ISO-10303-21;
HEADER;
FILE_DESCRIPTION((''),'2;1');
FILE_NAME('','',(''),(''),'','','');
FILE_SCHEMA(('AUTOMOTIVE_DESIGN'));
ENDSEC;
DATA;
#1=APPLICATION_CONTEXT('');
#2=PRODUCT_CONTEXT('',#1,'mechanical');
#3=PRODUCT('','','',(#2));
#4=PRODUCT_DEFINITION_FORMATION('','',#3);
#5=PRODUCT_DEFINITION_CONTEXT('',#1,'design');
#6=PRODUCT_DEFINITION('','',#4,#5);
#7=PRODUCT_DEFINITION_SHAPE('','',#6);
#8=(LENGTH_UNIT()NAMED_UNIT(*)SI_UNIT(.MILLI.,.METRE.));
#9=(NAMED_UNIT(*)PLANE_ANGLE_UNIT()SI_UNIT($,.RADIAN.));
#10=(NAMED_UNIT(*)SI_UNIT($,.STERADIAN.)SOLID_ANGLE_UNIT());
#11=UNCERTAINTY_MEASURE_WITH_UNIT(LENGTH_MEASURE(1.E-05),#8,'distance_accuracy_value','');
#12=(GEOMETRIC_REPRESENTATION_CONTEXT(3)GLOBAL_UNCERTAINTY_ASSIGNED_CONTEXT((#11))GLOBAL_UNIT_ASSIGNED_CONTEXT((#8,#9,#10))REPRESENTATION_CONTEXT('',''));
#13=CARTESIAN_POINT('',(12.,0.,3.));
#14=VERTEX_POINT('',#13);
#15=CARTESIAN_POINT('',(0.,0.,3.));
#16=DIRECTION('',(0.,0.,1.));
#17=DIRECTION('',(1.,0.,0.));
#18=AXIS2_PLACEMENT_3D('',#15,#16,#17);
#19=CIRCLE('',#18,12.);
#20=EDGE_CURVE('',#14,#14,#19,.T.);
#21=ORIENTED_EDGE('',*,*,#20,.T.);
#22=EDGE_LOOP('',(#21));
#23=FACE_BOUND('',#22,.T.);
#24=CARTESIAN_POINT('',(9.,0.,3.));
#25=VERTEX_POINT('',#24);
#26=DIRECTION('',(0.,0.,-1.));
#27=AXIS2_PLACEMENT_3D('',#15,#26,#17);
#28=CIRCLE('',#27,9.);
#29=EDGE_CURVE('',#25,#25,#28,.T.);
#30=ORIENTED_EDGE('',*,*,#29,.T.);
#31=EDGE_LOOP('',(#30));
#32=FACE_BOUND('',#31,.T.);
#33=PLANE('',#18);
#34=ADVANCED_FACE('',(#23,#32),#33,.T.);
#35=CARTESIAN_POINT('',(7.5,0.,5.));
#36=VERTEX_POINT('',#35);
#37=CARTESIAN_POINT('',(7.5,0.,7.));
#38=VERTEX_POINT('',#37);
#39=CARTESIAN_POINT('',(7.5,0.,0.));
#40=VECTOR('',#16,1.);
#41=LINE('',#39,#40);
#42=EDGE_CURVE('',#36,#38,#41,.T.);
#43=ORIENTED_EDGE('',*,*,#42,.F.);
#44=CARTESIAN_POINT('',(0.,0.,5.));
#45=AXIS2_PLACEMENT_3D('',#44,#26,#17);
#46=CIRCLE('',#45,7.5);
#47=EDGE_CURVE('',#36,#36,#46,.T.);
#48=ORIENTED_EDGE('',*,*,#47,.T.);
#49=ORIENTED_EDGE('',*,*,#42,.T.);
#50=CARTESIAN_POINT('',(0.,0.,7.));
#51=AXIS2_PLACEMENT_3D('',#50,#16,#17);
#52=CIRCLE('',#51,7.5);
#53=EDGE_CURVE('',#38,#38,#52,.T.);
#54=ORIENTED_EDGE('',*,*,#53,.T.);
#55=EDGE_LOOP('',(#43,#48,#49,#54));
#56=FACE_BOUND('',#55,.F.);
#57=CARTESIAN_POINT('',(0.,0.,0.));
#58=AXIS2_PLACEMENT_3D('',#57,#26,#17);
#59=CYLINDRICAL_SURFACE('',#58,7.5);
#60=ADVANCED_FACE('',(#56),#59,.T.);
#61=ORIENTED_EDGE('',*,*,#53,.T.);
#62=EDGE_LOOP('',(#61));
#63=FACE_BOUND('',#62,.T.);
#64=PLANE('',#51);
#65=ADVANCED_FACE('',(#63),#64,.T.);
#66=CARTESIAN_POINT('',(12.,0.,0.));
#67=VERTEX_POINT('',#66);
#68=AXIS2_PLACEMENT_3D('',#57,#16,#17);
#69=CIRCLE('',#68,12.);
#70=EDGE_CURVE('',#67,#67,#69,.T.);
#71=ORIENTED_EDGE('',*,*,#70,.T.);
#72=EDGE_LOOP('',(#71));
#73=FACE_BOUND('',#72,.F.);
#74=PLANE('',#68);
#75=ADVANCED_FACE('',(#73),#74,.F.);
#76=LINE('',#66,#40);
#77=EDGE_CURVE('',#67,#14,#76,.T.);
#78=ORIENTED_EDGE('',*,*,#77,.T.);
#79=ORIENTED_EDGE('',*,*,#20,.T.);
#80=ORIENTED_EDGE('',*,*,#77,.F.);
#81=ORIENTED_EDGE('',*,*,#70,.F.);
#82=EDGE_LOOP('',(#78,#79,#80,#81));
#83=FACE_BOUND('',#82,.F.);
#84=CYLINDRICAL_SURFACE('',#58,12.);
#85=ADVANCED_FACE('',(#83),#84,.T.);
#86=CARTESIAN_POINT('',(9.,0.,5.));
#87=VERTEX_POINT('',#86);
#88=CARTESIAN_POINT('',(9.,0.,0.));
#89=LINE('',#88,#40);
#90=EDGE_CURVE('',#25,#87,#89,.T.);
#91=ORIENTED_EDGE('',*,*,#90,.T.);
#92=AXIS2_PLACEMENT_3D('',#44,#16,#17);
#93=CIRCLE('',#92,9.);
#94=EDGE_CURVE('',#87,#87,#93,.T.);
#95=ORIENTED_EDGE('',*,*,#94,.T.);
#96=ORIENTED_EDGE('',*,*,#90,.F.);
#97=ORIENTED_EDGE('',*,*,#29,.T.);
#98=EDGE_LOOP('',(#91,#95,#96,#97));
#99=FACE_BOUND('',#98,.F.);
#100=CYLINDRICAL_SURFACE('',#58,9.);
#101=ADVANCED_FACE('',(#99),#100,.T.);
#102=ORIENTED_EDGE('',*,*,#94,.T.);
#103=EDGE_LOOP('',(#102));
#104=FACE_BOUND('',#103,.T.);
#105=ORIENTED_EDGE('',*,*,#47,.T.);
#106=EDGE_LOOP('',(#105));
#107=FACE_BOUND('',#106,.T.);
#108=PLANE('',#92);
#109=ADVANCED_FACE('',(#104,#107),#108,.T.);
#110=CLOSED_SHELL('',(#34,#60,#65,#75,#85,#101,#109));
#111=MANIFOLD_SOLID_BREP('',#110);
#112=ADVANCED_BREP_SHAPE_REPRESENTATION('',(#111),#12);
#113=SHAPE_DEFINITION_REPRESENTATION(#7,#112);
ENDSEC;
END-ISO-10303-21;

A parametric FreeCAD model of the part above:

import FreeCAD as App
import Part
import Sketcher

V = App.Vector
Q = App.Units.Quantity

doc = App.newDocument("Part")
body = doc.addObject("PartDesign::Body", "Body")

sketch1 = doc.addObject("Sketcher::SketchObject", "Sketch")
body.addObject(sketch1)
sketch1.AttachmentSupport = (doc.XY_Plane, [""])
sketch1.MapMode = "FlatFace"
sketch1.addGeometry(Part.Circle(V(0, 0, 0), V(0, 0, 1), 9), False)
sketch1.addConstraint(Sketcher.Constraint("Coincident", 0, 3, -1, 1))
sketch1.addConstraint(Sketcher.Constraint("Diameter", 0, Q("18 mm")))
pad1 = doc.addObject("PartDesign::Pad", "Pad")
body.addObject(pad1)
pad1.Profile = sketch1
pad1.Length = 5
body2 = doc.addObject("PartDesign::Body", "Body001")

sketch2 = doc.addObject("Sketcher::SketchObject", "Sketch001")
body2.addObject(sketch2)
sketch2.AttachmentSupport = (doc.getObject("XY_Plane001"), [""])
sketch2.MapMode = "FlatFace"
sketch2.addGeometry(Part.Circle(V(0, 0, 0), V(0, 0, 1), 12), False)
sketch2.addConstraint(Sketcher.Constraint("Coincident", 0, 3, -1, 1))
sketch2.addConstraint(Sketcher.Constraint("Diameter", 0, Q("24 mm")))
pad2 = doc.addObject("PartDesign::Pad", "Pad001")
body2.addObject(pad2)
pad2.Profile = sketch2
pad2.Length = 3
body3 = doc.addObject("PartDesign::Body", "Body002")

sketch3 = doc.addObject("Sketcher::SketchObject", "Sketch002")
body3.addObject(sketch3)
sketch3.AttachmentSupport = (doc.getObject("XY_Plane002"), [""])
sketch3.MapMode = "FlatFace"
sketch3.addGeometry(Part.Circle(V(0, 0, 0), V(0, 0, 1), 8), False)
sketch3.addConstraint(Sketcher.Constraint("Coincident", 0, 3, -1, 1))
sketch3.addConstraint(Sketcher.Constraint("Diameter", 0, Q("15 mm")))
pad3 = doc.addObject("PartDesign::Pad", "Pad002")
body3.addObject(pad3)
pad3.Profile = sketch3
pad3.Length = 7
doc.recompute()

boolean = doc.addObject("PartDesign::Boolean", "Boolean")
body3.addObject(boolean)
boolean.Type = "Fuse"
boolean.addObjects([body])
doc.recompute()

boolean2 = doc.addObject("PartDesign::Boolean", "Boolean001")
body3.addObject(boolean2)
boolean2.Type = "Fuse"
boolean2.addObjects([body2])

doc.recompute()
